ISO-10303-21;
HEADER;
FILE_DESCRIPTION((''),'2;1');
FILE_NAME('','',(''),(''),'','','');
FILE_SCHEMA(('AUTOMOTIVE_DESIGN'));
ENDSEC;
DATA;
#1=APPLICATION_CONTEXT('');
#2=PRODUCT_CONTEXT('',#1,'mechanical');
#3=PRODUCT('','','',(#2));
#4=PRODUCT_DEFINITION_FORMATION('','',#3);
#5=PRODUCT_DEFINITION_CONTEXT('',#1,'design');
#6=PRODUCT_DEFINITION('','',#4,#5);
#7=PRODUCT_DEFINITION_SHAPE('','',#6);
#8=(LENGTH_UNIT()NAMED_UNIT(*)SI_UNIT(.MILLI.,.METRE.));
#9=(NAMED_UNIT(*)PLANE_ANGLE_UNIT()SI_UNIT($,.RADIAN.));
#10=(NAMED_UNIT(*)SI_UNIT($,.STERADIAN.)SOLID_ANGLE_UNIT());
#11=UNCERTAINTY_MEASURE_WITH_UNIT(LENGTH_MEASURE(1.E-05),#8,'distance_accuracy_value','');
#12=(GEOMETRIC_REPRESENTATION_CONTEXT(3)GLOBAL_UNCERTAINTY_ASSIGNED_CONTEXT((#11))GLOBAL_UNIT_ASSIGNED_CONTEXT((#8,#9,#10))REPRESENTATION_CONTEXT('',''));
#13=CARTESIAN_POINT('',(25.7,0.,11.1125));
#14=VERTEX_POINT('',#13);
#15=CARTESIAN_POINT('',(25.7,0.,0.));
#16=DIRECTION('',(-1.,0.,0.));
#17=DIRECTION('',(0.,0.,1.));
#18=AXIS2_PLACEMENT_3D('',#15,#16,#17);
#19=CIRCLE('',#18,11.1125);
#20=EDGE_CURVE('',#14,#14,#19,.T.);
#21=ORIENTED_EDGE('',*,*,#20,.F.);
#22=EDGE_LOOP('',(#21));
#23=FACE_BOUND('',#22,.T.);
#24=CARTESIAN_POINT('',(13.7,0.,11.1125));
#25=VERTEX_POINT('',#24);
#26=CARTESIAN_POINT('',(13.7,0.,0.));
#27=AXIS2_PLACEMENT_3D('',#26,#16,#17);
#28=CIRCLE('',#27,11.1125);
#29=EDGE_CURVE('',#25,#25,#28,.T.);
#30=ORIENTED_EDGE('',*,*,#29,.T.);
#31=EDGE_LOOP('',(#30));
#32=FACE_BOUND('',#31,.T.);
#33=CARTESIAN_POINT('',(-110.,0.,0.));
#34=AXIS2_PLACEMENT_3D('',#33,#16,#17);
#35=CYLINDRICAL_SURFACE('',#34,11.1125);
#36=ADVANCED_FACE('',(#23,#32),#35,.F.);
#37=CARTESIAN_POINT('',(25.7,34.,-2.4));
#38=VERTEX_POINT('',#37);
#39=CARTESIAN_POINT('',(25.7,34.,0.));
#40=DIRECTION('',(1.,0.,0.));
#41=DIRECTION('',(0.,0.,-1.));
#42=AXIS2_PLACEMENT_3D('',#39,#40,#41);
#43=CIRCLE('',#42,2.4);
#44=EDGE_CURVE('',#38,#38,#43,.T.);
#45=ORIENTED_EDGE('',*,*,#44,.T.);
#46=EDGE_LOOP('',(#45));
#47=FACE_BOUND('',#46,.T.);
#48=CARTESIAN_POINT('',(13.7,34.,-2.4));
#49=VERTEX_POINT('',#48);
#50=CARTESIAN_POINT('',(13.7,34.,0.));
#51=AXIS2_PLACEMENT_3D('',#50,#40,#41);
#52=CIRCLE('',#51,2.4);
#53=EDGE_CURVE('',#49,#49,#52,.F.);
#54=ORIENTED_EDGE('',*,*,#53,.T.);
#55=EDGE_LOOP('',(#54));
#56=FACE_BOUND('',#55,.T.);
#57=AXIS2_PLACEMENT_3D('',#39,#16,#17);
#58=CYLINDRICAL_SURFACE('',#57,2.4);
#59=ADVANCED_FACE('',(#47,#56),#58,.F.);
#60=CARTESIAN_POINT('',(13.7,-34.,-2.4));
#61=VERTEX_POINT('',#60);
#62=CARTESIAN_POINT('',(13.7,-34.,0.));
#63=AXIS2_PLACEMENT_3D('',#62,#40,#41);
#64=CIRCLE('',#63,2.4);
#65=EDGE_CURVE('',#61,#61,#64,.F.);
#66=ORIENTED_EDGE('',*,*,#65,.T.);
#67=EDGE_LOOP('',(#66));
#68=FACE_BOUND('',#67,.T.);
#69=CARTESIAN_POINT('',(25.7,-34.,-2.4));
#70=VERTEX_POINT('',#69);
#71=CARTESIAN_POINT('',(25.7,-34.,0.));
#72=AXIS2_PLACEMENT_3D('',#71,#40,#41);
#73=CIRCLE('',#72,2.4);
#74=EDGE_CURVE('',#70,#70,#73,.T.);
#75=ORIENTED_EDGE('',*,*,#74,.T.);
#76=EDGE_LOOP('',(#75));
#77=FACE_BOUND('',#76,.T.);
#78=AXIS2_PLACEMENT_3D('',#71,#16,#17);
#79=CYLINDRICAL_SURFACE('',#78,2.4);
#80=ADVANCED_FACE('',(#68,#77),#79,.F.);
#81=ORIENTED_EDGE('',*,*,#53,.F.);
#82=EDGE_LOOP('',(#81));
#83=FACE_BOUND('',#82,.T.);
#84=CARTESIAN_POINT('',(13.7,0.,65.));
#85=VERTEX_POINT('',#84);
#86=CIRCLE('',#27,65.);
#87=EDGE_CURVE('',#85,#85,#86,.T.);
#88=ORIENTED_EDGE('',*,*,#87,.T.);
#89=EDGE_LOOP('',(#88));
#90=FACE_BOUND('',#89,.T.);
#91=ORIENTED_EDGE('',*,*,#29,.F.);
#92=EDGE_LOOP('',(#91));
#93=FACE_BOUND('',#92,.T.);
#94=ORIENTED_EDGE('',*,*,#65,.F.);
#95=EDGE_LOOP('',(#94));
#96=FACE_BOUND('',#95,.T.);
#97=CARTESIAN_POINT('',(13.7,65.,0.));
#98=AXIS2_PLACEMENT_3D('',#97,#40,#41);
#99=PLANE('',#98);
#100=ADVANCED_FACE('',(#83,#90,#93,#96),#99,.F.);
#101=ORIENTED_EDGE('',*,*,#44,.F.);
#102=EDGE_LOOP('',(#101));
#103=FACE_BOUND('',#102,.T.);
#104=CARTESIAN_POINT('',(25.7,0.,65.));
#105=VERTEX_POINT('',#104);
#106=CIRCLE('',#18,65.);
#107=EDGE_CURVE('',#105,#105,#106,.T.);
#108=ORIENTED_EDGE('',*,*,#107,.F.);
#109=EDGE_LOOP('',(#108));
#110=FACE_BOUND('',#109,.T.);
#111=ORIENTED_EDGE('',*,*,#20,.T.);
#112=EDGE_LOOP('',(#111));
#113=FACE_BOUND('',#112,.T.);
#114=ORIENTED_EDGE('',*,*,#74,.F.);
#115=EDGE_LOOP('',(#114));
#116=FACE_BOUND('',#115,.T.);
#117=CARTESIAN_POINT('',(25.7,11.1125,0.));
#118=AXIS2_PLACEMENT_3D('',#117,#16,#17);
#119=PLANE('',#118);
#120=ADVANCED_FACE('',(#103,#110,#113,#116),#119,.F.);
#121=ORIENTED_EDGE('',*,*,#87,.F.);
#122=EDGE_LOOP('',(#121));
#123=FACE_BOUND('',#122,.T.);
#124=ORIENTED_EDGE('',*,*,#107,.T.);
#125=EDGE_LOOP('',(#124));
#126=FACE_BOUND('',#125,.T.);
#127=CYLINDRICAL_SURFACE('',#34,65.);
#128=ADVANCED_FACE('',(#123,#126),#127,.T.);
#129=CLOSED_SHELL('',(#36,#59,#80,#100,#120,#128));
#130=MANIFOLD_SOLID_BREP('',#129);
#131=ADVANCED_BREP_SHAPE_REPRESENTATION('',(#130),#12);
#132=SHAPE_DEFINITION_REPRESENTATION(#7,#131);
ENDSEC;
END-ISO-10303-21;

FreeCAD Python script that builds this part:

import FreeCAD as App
import Part
import Sketcher
from FreeCAD import Vector
Q = App.Units.Quantity

doc = App.newDocument("Part")
body = doc.addObject("PartDesign::Body", "Body")

# Sketch on XY plane
sketch1 = body.newObject("Sketcher::SketchObject", "Sketch")
sketch1.AttachmentSupport = (doc.getObject("XY_Plane"), [""])
sketch1.MapMode = "FlatFace"
sketch1.addGeometry([
    Part.LineSegment(Vector(13.7, 65, 0), Vector(13.7, 11.1125, 0)),
    Part.LineSegment(Vector(13.7, 11.1125, 0), Vector(25.7, 11.1125, 0)),
    Part.LineSegment(Vector(25.7, 11.1125, 0), Vector(25.7, 65, 0)),
    Part.LineSegment(Vector(25.7, 65, 0), Vector(13.7, 65, 0)),
], False)
sketch1.addConstraint([
    Sketcher.Constraint("Coincident", 0, 2, 1, 1),
    Sketcher.Constraint("Coincident", 1, 2, 2, 1),
    Sketcher.Constraint("Coincident", 2, 2, 3, 1),
    Sketcher.Constraint("Coincident", 3, 2, 0, 1),
    Sketcher.Constraint("Vertical", 0),
    Sketcher.Constraint("Horizontal", 1),
    Sketcher.Constraint("Vertical", 2),
    Sketcher.Constraint("Horizontal", 3),
    Sketcher.Constraint("DistanceX", 1, 1, 1, 2, Q("12 mm")),
    Sketcher.Constraint("DistanceY", -1, 1, 2, 2, Q("65 mm")),
    Sketcher.Constraint("DistanceX", -1, 1, 0, 2, Q("13.7 mm")),
    Sketcher.Constraint("DistanceY", 0, 2, 0, 1, Q("53.8875 mm")),
])
revolution = body.newObject("PartDesign::Revolution", "Revolution")
revolution.Profile = sketch1
revolution.ReferenceAxis = (sketch1, ["H_Axis"])
revolution.Angle = 360

# Sketch on YZ plane
sketch2 = body.newObject("Sketcher::SketchObject", "Sketch001")
sketch2.AttachmentSupport = (doc.getObject("YZ_Plane"), [""])
sketch2.MapMode = "FlatFace"
sketch2.addGeometry([
    Part.Circle(Vector(34, 0, 0), Vector(0, 0, 1), 2.4),
    Part.Circle(Vector(-34, 0, 0), Vector(0, 0, 1), 2.4),
], False)
sketch2.addConstraint([
    Sketcher.Constraint("Equal", 0, 1),
    Sketcher.Constraint("Symmetric", 0, 3, 1, 3, -1, 1),
    Sketcher.Constraint("PointOnObject", 0, 3, -1),
    Sketcher.Constraint("Diameter", 0, Q("4.8 mm")),
    Sketcher.Constraint("DistanceX", -1, 1, 0, 3, Q("34 mm")),
])
pocket1 = body.newObject("PartDesign::Pocket", "Pocket")
pocket1.Profile = sketch2
pocket1.Type = "ThroughAll"
pocket1.Midplane = True

doc.recompute()
